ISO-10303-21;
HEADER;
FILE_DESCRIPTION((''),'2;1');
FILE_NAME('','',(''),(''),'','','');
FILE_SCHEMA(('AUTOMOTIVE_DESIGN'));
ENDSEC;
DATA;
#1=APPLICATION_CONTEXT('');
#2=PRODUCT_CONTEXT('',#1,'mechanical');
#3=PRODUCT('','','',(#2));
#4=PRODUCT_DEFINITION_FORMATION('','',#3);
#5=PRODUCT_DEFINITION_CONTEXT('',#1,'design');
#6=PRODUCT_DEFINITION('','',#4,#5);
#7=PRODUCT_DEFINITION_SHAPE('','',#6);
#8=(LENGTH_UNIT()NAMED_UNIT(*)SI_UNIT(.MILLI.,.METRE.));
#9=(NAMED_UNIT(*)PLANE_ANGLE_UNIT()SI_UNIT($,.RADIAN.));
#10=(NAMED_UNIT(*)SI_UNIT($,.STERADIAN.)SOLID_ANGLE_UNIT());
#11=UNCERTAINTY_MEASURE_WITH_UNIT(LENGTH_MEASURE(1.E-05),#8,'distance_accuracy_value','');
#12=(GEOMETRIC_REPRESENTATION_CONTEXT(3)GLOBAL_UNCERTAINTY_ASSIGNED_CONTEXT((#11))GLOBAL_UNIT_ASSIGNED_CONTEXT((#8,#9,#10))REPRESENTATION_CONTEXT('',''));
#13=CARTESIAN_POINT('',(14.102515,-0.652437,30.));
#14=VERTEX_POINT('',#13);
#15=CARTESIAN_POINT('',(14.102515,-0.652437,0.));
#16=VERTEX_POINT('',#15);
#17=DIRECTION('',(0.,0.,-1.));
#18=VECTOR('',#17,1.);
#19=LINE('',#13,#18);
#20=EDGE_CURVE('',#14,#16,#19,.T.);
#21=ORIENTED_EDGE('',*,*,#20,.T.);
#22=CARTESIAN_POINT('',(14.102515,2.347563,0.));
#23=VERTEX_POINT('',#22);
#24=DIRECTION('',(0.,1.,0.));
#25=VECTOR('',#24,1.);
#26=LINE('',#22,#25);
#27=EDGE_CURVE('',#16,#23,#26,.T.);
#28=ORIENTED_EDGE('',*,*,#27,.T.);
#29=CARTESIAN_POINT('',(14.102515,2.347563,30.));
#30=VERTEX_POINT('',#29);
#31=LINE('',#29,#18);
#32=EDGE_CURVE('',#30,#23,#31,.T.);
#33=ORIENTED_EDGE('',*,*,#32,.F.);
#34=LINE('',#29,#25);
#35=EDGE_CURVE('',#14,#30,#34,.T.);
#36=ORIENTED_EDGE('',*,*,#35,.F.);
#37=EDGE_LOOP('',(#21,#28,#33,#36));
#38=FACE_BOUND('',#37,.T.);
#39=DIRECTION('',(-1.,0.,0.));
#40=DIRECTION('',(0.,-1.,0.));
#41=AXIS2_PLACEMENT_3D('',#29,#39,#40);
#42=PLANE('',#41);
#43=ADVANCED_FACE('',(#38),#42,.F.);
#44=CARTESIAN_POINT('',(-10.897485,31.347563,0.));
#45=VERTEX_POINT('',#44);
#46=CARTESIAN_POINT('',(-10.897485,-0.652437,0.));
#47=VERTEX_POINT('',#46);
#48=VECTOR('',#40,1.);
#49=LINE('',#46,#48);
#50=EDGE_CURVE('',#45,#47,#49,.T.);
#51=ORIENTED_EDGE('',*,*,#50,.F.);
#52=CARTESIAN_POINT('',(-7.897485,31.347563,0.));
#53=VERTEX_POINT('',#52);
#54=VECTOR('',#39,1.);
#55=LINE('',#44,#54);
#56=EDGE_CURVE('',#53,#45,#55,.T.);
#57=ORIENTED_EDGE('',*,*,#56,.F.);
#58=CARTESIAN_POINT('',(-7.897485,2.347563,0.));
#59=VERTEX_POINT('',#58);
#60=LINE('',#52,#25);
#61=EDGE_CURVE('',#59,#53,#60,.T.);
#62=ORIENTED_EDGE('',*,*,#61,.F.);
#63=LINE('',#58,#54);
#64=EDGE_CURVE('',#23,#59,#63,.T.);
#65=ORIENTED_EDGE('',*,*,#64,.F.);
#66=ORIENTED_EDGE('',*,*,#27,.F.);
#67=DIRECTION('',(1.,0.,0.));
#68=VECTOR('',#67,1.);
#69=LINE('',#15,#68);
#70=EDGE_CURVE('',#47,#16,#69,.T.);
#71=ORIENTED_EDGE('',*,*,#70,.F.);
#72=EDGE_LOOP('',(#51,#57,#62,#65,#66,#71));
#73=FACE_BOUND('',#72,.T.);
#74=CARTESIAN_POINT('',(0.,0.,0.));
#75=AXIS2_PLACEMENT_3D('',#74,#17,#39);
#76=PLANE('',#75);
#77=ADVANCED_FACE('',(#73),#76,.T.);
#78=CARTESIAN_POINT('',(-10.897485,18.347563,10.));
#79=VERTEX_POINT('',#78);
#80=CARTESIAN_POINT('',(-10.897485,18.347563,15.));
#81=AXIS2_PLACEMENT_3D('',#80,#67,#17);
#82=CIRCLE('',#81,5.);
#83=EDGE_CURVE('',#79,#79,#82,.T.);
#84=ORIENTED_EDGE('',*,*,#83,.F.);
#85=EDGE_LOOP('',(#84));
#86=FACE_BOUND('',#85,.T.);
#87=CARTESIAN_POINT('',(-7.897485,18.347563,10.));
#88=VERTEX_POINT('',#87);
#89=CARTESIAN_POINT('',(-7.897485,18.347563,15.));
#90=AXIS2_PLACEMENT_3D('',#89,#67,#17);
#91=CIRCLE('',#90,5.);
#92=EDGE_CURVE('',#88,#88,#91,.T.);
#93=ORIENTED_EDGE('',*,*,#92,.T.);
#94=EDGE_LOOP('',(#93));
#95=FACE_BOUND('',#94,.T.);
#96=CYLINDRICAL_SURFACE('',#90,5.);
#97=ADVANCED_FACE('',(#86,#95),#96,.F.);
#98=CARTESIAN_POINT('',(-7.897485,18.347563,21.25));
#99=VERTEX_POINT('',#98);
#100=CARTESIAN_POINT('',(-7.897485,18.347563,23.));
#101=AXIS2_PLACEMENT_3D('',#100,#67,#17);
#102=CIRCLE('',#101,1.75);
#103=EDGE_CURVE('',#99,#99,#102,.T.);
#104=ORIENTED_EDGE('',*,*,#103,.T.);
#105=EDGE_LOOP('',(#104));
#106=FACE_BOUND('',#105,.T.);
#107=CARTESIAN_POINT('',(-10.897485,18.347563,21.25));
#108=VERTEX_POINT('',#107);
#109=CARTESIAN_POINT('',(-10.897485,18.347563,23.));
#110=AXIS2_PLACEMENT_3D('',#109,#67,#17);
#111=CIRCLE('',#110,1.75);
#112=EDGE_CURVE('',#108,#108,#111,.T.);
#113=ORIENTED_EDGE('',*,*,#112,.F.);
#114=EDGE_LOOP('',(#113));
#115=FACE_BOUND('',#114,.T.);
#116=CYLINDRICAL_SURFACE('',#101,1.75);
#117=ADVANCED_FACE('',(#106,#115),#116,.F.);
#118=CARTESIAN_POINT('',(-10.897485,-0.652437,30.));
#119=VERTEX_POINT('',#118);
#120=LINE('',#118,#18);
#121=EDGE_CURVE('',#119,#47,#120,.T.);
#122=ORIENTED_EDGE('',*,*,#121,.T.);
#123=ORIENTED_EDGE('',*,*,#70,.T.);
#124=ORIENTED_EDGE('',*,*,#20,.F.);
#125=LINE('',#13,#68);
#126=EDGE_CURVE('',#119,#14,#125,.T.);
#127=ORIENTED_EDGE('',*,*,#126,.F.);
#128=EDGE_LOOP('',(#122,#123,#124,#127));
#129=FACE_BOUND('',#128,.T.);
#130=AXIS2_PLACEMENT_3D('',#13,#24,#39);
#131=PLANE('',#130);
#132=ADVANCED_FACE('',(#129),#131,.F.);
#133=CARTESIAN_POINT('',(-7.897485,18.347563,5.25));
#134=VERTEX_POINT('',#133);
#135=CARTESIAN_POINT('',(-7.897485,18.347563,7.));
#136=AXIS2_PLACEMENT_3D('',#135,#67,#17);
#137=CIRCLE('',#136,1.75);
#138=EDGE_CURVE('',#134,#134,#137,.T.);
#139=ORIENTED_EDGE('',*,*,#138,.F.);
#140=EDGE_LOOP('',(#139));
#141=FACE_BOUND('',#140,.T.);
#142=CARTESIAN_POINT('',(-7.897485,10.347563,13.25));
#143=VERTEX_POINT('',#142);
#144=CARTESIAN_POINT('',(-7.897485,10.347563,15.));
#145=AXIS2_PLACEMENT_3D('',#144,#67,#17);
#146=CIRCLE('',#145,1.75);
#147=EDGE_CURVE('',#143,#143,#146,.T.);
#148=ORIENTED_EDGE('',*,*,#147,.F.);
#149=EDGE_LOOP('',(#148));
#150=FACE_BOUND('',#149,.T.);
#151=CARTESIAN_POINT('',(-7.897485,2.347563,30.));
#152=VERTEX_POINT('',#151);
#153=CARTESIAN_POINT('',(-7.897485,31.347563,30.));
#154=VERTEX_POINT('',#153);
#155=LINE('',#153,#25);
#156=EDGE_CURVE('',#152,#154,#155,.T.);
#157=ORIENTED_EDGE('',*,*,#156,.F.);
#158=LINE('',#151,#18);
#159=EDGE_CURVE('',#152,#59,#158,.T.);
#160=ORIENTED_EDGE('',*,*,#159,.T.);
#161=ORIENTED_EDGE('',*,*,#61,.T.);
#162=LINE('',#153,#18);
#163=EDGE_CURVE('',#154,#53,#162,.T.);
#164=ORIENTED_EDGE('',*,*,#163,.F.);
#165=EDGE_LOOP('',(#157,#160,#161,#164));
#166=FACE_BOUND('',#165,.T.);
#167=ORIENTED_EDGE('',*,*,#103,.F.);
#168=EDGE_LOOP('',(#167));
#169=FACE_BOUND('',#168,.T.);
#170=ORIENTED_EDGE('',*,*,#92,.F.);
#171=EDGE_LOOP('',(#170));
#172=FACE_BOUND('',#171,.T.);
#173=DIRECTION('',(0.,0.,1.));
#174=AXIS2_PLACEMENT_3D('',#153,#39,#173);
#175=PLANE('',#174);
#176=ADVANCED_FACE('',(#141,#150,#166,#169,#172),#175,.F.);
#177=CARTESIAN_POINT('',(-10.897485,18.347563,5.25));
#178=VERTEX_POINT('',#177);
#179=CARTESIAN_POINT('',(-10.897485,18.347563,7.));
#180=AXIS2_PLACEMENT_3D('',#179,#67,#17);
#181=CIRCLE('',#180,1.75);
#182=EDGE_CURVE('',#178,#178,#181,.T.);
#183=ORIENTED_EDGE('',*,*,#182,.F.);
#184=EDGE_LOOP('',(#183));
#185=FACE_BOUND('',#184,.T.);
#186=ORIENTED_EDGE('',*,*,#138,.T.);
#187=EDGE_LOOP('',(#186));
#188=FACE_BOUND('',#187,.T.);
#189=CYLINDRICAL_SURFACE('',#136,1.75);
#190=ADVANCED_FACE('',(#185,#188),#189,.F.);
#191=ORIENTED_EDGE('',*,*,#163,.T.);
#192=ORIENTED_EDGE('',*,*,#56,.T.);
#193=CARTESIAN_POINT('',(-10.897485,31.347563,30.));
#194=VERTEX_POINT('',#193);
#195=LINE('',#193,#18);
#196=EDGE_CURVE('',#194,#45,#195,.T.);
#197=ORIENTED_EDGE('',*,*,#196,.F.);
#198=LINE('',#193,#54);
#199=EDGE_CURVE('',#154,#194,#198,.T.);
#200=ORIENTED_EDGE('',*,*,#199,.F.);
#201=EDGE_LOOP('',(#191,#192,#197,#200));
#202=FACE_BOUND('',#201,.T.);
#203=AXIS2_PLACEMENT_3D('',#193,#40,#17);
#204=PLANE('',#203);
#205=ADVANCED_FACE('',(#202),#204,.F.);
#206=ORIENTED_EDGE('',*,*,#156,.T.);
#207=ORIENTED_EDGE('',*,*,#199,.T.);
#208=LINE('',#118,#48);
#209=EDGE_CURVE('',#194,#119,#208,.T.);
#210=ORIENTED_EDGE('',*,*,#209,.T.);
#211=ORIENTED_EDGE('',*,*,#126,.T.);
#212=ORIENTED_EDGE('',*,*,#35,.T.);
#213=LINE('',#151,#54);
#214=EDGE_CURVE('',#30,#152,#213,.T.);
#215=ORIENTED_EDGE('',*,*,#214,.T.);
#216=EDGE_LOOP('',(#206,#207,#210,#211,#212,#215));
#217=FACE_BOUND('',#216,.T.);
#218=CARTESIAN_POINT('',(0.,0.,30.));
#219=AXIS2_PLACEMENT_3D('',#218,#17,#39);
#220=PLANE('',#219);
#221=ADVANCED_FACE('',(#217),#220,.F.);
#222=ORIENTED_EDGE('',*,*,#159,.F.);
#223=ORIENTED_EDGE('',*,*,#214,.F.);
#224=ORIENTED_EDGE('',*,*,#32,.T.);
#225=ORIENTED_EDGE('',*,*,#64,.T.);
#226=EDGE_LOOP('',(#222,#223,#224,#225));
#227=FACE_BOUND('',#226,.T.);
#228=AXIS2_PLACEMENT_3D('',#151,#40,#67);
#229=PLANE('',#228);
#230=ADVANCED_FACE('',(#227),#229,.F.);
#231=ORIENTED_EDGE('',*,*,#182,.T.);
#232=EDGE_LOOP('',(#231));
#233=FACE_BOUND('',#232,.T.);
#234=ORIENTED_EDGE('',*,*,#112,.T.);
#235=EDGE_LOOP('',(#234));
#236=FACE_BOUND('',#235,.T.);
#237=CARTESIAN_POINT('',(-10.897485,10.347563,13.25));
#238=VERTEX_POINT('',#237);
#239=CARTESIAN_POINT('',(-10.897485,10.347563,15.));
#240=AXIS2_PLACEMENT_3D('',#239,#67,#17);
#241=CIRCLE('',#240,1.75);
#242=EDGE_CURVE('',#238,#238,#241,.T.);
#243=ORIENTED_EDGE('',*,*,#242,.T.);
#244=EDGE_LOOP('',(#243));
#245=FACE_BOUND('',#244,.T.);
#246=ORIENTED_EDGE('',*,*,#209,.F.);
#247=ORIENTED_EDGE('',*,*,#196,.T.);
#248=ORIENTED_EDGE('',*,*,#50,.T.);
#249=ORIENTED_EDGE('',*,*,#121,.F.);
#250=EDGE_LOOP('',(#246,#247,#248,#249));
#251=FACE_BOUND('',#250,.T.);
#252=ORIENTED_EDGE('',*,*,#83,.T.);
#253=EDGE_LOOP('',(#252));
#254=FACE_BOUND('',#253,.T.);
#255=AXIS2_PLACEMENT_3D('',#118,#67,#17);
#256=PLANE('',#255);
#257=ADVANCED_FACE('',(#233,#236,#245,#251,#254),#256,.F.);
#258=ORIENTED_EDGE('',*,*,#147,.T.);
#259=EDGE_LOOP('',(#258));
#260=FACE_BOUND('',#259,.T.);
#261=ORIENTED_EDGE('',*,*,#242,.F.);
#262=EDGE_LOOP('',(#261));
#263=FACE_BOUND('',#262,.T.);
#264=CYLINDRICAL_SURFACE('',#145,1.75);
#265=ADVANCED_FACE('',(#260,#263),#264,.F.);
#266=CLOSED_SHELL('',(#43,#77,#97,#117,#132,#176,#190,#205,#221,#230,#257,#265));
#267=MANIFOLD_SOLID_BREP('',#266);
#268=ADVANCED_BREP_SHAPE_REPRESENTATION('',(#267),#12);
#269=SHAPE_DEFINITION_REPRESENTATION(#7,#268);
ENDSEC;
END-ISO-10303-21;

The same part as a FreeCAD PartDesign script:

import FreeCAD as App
import Part
import Sketcher
from FreeCAD import Vector

doc = App.newDocument("Part")
body = doc.addObject("PartDesign::Body", "Body")

# Sketch on XY plane
sketch1 = doc.addObject("Sketcher::SketchObject", "Sketch")
body.addObject(sketch1)
sketch1.AttachmentSupport = (doc.XY_Plane, [""])
sketch1.MapMode = "FlatFace"
sketch1.addGeometry(Part.LineSegment(Vector(-7.897485, 2.347563, 0), Vector(-7.897485, 31.347563, 0)), False)
sketch1.addGeometry(Part.LineSegment(Vector(-7.897485, 31.347563, 0), Vector(-10.897485, 31.347563, 0)), False)
sketch1.addGeometry(Part.LineSegment(Vector(-10.897485, 31.347563, 0), Vector(-10.897485, -0.652437, 0)), False)
sketch1.addGeometry(Part.LineSegment(Vector(-10.897485, -0.652437, 0), Vector(14.102515, -0.652437, 0)), False)
sketch1.addGeometry(Part.LineSegment(Vector(14.102515, -0.652437, 0), Vector(14.102515, 2.347563, 0)), False)
sketch1.addGeometry(Part.LineSegment(Vector(14.102515, 2.347563, 0), Vector(-7.897485, 2.347563, 0)), False)
sketch1.addConstraint(Sketcher.Constraint("Coincident", 0, 2, 1, 1))
sketch1.addConstraint(Sketcher.Constraint("Coincident", 1, 2, 2, 1))
sketch1.addConstraint(Sketcher.Constraint("Coincident", 2, 2, 3, 1))
sketch1.addConstraint(Sketcher.Constraint("Coincident", 3, 2, 4, 1))
sketch1.addConstraint(Sketcher.Constraint("Coincident", 4, 2, 5, 1))
sketch1.addConstraint(Sketcher.Constraint("Coincident", 5, 2, 0, 1))
sketch1.addConstraint(Sketcher.Constraint("Vertical", 0))
sketch1.addConstraint(Sketcher.Constraint("Horizontal", 1))
sketch1.addConstraint(Sketcher.Constraint("Vertical", 2))
sketch1.addConstraint(Sketcher.Constraint("Horizontal", 3))
sketch1.addConstraint(Sketcher.Constraint("Vertical", 4))
sketch1.addConstraint(Sketcher.Constraint("Horizontal", 5))
sketch1.addConstraint(Sketcher.Constraint("Equal", 1, 4))
sketch1.addConstraint(Sketcher.Constraint("DistanceX", 1, 2, 1, 1, 3.0))
sketch1.addConstraint(Sketcher.Constraint("DistanceX", 3, 1, 3, 2, 25.0))
sketch1.addConstraint(Sketcher.Constraint("DistanceY", 0, 1, 0, 2, 29.0))
sketch1.addConstraint(Sketcher.Constraint("DistanceX", 0, 2, -1, 1, 7.897485))
sketch1.addConstraint(Sketcher.Constraint("DistanceY", -1, 1, 0, 2, 31.347563))
pad1 = doc.addObject("PartDesign::Pad", "Pad")
body.addObject(pad1)
pad1.Profile = sketch1
pad1.Length = 30

# Sketch on YZ plane
sketch2 = doc.addObject("Sketcher::SketchObject", "Sketch001")
body.addObject(sketch2)
sketch2.AttachmentSupport = (doc.YZ_Plane, [""])
sketch2.MapMode = "FlatFace"
sketch2.AttachmentOffset = App.Placement(Vector(0, 0, -7.897485), App.Rotation())
sketch2.addGeometry(Part.Circle(Vector(18.347563, 15, 0), Vector(0, 0, 1), 5), False)
sketch2.addConstraint(Sketcher.Constraint("Diameter", 0, 10.0))
sketch2.addConstraint(Sketcher.Constraint("DistanceY", -1, 1, 0, 3, 15.0))
sketch2.addConstraint(Sketcher.Constraint("DistanceX", -1, 1, 0, 3, 18.347563))
doc.recompute()
hole = doc.addObject("PartDesign::Hole", "Hole")
body.addObject(hole)
hole.Profile = sketch2
hole.ThreadType = "None"
hole.Diameter = 10
hole.DepthType = "ThroughAll"

# Sketch on YZ plane
sketch3 = doc.addObject("Sketcher::SketchObject", "Sketch002")
body.addObject(sketch3)
sketch3.AttachmentSupport = (doc.YZ_Plane, [""])
sketch3.MapMode = "FlatFace"
sketch3.AttachmentOffset = App.Placement(Vector(0, 0, -7.897485), App.Rotation())
sketch3.addGeometry(Part.Circle(Vector(18.347563, 7, 0), Vector(0, 0, 1), 1.75), False)
sketch3.addGeometry(Part.Circle(Vector(18.347563, 23, 0), Vector(0, 0, 1), 1.75), False)
sketch3.addGeometry(Part.Circle(Vector(10.347563, 15, 0), Vector(0, 0, 1), 1.75), False)
sketch3.addConstraint(Sketcher.Constraint("Equal", 0, 1))
sketch3.addConstraint(Sketcher.Constraint("Equal", 1, 2))
sketch3.addConstraint(Sketcher.Constraint("Vertical", 0, 3, 1, 3))
sketch3.addConstraint(Sketcher.Constraint("Diameter", 0, 3.5))
sketch3.addConstraint(Sketcher.Constraint("DistanceY", -1, 1, 0, 3, 7.0))
sketch3.addConstraint(Sketcher.Constraint("DistanceY", -1, 1, 1, 3, 23.0))
sketch3.addConstraint(Sketcher.Constraint("DistanceY", -1, 1, 2, 3, 15.0))
sketch3.addConstraint(Sketcher.Constraint("DistanceX", 2, 3, 0, 3, 8.0))
sketch3.addConstraint(Sketcher.Constraint("DistanceX", -1, 1, 0, 3, 18.347563))
doc.recompute()
hole2 = doc.addObject("PartDesign::Hole", "Hole001")
body.addObject(hole2)
hole2.Profile = sketch3
hole2.ThreadType = "None"
hole2.Diameter = 3.5
hole2.DepthType = "ThroughAll"

doc.recompute()
